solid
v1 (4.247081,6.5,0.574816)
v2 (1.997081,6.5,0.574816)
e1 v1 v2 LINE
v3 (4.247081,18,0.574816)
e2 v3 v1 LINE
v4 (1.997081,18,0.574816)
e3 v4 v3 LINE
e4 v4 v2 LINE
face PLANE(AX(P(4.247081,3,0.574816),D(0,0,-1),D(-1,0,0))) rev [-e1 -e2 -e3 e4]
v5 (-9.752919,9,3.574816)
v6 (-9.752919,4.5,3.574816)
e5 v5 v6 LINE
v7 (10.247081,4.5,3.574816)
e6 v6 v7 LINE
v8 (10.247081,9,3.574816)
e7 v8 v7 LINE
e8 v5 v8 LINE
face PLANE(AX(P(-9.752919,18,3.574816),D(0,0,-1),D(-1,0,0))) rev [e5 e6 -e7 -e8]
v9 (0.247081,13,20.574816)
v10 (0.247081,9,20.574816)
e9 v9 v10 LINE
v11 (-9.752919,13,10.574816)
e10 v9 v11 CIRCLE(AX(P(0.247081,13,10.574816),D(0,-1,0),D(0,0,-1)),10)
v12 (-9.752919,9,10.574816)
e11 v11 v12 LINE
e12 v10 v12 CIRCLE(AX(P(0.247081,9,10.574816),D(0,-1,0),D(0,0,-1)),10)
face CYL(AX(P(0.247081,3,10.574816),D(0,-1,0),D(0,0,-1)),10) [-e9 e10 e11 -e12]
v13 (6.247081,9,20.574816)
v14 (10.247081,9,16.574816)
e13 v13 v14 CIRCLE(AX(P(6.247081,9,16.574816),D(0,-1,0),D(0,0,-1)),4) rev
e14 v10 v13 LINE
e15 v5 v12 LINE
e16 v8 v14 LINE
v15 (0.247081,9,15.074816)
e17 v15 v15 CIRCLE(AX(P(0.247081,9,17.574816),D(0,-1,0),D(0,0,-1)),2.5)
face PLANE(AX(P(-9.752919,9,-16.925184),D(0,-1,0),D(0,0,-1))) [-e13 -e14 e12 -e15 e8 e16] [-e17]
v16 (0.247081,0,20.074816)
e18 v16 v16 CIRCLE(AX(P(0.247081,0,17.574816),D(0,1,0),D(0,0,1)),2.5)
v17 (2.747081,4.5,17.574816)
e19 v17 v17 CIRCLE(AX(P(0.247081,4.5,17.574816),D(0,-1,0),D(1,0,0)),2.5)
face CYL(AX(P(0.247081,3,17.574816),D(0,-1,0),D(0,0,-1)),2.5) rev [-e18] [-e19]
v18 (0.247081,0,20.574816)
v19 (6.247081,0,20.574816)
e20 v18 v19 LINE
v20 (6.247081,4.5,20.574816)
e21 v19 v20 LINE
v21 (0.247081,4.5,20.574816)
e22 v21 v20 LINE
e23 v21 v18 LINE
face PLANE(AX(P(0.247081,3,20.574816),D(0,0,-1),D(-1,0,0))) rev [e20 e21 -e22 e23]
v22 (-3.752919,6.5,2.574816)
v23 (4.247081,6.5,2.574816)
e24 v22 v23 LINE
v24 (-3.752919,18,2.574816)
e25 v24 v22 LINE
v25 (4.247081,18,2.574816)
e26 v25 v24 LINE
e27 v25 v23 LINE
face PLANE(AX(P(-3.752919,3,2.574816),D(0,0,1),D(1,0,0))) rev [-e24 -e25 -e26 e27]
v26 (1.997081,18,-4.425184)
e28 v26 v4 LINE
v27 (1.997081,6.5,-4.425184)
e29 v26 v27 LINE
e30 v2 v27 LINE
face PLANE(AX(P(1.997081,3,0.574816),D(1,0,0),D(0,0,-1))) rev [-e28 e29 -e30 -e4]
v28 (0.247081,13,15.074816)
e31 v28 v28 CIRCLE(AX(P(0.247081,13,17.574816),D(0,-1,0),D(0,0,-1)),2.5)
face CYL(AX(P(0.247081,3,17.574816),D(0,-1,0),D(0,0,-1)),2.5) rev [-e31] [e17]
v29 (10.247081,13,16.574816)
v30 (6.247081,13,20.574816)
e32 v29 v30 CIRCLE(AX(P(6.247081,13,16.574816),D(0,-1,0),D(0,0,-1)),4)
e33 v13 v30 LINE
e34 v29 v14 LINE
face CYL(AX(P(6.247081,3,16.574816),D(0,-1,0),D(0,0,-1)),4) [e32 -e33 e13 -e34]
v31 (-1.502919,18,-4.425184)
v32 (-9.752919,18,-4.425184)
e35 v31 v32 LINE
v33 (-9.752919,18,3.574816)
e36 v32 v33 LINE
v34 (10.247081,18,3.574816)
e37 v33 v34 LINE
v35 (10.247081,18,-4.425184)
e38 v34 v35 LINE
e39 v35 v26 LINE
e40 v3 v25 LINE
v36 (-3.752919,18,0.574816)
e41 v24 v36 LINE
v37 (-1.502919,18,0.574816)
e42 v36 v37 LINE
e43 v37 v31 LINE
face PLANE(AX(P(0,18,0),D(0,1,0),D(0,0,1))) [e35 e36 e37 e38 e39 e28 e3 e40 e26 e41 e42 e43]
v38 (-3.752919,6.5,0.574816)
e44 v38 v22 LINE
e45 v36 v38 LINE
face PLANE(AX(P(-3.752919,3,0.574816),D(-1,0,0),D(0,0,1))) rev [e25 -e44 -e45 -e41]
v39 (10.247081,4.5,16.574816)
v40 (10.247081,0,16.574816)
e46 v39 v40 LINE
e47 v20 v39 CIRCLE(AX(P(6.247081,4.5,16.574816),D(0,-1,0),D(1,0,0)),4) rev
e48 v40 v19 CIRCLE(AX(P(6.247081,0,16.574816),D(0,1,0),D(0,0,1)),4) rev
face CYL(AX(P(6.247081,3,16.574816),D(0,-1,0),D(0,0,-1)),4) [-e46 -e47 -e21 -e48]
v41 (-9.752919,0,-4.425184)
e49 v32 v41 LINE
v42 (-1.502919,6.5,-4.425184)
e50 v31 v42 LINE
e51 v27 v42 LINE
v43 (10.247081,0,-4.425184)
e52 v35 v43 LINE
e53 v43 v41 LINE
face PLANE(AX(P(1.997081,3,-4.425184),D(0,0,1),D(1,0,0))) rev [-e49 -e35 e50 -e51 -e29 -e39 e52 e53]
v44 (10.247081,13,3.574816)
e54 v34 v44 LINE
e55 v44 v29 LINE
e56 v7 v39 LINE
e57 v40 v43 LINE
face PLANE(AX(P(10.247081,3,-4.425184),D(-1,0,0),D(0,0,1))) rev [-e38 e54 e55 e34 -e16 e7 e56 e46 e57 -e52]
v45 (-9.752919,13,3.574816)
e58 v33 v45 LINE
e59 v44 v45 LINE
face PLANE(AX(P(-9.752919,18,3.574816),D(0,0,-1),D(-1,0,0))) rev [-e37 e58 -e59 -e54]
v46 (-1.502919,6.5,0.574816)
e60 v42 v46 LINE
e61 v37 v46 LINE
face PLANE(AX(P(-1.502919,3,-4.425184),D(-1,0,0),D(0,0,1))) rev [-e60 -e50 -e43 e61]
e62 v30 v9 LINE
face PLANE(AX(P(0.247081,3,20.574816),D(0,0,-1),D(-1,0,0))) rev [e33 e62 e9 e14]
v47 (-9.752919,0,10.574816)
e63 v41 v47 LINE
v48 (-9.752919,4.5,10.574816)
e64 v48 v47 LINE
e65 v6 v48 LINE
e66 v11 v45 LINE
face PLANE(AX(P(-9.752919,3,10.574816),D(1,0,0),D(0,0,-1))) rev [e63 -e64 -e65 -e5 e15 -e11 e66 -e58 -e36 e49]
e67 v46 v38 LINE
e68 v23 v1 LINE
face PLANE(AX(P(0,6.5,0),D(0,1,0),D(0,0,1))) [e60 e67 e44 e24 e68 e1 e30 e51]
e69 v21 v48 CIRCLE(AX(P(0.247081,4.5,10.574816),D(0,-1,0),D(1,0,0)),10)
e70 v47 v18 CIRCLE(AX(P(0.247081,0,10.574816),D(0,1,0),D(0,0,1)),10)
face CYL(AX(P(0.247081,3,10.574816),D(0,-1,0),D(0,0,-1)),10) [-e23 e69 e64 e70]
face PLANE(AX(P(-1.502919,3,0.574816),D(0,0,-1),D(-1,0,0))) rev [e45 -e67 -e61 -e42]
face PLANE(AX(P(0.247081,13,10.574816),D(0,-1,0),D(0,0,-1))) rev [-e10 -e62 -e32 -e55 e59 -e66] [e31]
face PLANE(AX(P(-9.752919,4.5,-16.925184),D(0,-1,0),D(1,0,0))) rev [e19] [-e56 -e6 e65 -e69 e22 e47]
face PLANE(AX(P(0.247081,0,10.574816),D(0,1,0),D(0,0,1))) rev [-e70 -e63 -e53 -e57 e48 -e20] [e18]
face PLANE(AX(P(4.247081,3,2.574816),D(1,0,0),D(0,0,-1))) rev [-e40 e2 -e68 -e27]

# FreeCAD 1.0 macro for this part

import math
import FreeCAD as App
import Part
import Sketcher
from FreeCAD import Vector
Q = App.Units.Quantity


def edges_at(feature, points):
    """Names of the edges that pass closest to the given points."""
    edges = feature.Shape.Edges
    near = lambda p: min(range(len(edges)), key=lambda i: edges[i].distToShape(Part.Vertex(*p))[0])
    return sorted({f"Edge{near(p) + 1}" for p in points})


def add_polygon(sketch, points):
    """Adds a closed chain of lines whose ends are joined by coincident constraints."""
    first, n = sketch.GeometryCount, len(points)
    for a, b in zip(points, points[1:] + points[:1]):
        sketch.addGeometry(Part.LineSegment(App.Vector(*a, 0), App.Vector(*b, 0)), False)
    for i in range(n):
        sketch.addConstraint(Sketcher.Constraint("Coincident", first + i, 2, first + (i + 1) % n, 1))

doc = App.newDocument("Part")
body = doc.addObject("PartDesign::Body", "Body")

# Sketch on XZ plane
sketch1 = body.newObject("Sketcher::SketchObject", "Sketch")
sketch1.AttachmentSupport = (doc.getObject("XZ_Plane"), [""])
sketch1.MapMode = "FlatFace"
sketch1.addGeometry([
    Part.LineSegment(Vector(-1.5, 0.6, 0), Vector(-1.5, -4.4, 0)),  # 0
    Part.LineSegment(Vector(-1.5, -4.4, 0), Vector(-9.8, -4.4, 0)),  # 1
    Part.LineSegment(Vector(-9.8, -4.4, 0), Vector(-9.8, 10.6, 0)),  # 2
    Part.ArcOfCircle(Part.Circle(Vector(0.2, 10.6, 0), Vector(0, 0, 1), 10), math.radians(90), math.radians(180)),  # 3
    Part.LineSegment(Vector(0.2, 20.6, 0), Vector(10.2, 20.6, 0)),  # 4
    Part.LineSegment(Vector(10.2, 20.6, 0), Vector(10.2, -4.4, 0)),  # 5
    Part.LineSegment(Vector(10.2, -4.4, 0), Vector(2, -4.4, 0)),  # 6
    Part.LineSegment(Vector(2, -4.4, 0), Vector(2, 0.6, 0)),  # 7
    Part.LineSegment(Vector(2, 0.6, 0), Vector(4.2, 0.6, 0)),  # 8
    Part.LineSegment(Vector(4.2, 0.6, 0), Vector(4.2, 2.6, 0)),  # 9
    Part.LineSegment(Vector(4.2, 2.6, 0), Vector(-3.8, 2.6, 0)),  # 10
    Part.LineSegment(Vector(-3.8, 2.6, 0), Vector(-3.8, 0.6, 0)),  # 11
    Part.LineSegment(Vector(-3.8, 0.6, 0), Vector(-1.5, 0.6, 0)),  # 12
    Part.Circle(Vector(0.2, 17.6, 0), Vector(0, 0, 1), 2.5),  # 13
], False)
sketch1.addConstraint([
    Sketcher.Constraint("Coincident", 0, 2, 1, 1),
    Sketcher.Constraint("Coincident", 1, 2, 2, 1),
    Sketcher.Constraint("Tangent", 2, 2, 3, 2),
    Sketcher.Constraint("Tangent", 3, 1, 4, 1),
    Sketcher.Constraint("Coincident", 4, 2, 5, 1),
    Sketcher.Constraint("Coincident", 5, 2, 6, 1),
    Sketcher.Constraint("Coincident", 6, 2, 7, 1),
    Sketcher.Constraint("Coincident", 7, 2, 8, 1),
    Sketcher.Constraint("Coincident", 8, 2, 9, 1),
    Sketcher.Constraint("Coincident", 9, 2, 10, 1),
    Sketcher.Constraint("Coincident", 10, 2, 11, 1),
    Sketcher.Constraint("Coincident", 11, 2, 12, 1),
    Sketcher.Constraint("Coincident", 12, 2, 0, 1),
    Sketcher.Constraint("Vertical", 0),
    Sketcher.Constraint("Horizontal", 1),
    Sketcher.Constraint("Vertical", 2),
    Sketcher.Constraint("Horizontal", 4),
    Sketcher.Constraint("Vertical", 5),
    Sketcher.Constraint("Horizontal", 6),
    Sketcher.Constraint("Vertical", 7),
    Sketcher.Constraint("Horizontal", 8),
    Sketcher.Constraint("Vertical", 9),
    Sketcher.Constraint("Horizontal", 10),
    Sketcher.Constraint("Vertical", 11),
    Sketcher.Constraint("Horizontal", 12),
    Sketcher.Constraint("Horizontal", 1, 2, 5, 2),
    Sketcher.Constraint("Horizontal", 8, 2, 11, 2),
    Sketcher.Constraint("Vertical", 3, 3, 13, 3),
    Sketcher.Constraint("Equal", 1, 6),
    Sketcher.Constraint("Equal", 8, 12),
    Sketcher.Constraint("Diameter", 13, Q("5 mm")),
    Sketcher.Constraint("Radius", 3, Q("10 mm")),
    Sketcher.Constraint("DistanceX", 4, 1, 4, 2, Q("10 mm")),
    Sketcher.Constraint("DistanceX", 10, 2, 10, 1, Q("8 mm")),
    Sketcher.Constraint("DistanceY", 0, 2, 0, 1, Q("5 mm")),
    Sketcher.Constraint("DistanceY", 2, 1, 2, 2, Q("15 mm")),
    Sketcher.Constraint("DistanceY", 9, 1, 9, 2, Q("2 mm")),
    Sketcher.Constraint("DistanceY", 3, 3, 13, 3, Q("7 mm")),
    Sketcher.Constraint("DistanceX", 1, 2, 1, 1, Q("8.25 mm")),
    Sketcher.Constraint("DistanceX", -1, 1, 3, 3, Q("0.247081 mm")),
    Sketcher.Constraint("DistanceY", -1, 1, 3, 3, Q("10.574816 mm")),
])
pad1 = body.newObject("PartDesign::Pad", "Pad")
pad1.Profile = sketch1
pad1.Length = 3
pad1.Reversed = True
doc.recompute()

fillet = body.newObject("PartDesign::Fillet", "Fillet")
fillet.Base = (pad1, edges_at(pad1, [(10.247, 1.5, 20.575)]))
fillet.Radius = 4

# Sketch on XZ plane
sketch2 = body.newObject("Sketcher::SketchObject", "Sketch001")
sketch2.AttachmentSupport = (doc.getObject("XZ_Plane"), [""])
sketch2.MapMode = "FlatFace"
sketch2.AttachmentOffset = App.Placement(Vector(0, 0, -3), App.Rotation())
add_polygon(sketch2, [(-9.8, 3.6), (10.2, 3.6), (10.2, -4.4), (2, -4.4), (2, 0.6), (4.2, 0.6), (4.2, 2.6), (-3.8, 2.6), (-3.8, 0.6), (-1.5, 0.6), (-1.5, -4.4), (-9.8, -4.4)])  # lines 0-11
sketch2.addConstraint([
    Sketcher.Constraint("Horizontal", 0),
    Sketcher.Constraint("Vertical", 1),
    Sketcher.Constraint("Horizontal", 2),
    Sketcher.Constraint("Vertical", 3),
    Sketcher.Constraint("Horizontal", 4),
    Sketcher.Constraint("Vertical", 5),
    Sketcher.Constraint("Horizontal", 6),
    Sketcher.Constraint("Vertical", 7),
    Sketcher.Constraint("Horizontal", 8),
    Sketcher.Constraint("Vertical", 9),
    Sketcher.Constraint("Horizontal", 10),
    Sketcher.Constraint("Vertical", 11),
    Sketcher.Constraint("Horizontal", 4, 2, 7, 2),
    Sketcher.Constraint("Horizontal", 2, 2, 9, 2),
    Sketcher.Constraint("Equal", 4, 8),
    Sketcher.Constraint("Equal", 2, 10),
    Sketcher.Constraint("Equal", 6, 1),
    Sketcher.Constraint("DistanceX", 0, 1, 0, 2, Q("20 mm")),
    Sketcher.Constraint("DistanceX", 6, 2, 6, 1, Q("8 mm")),
    Sketcher.Constraint("DistanceY", 3, 1, 3, 2, Q("5 mm")),
    Sketcher.Constraint("DistanceY", 5, 1, 5, 2, Q("2 mm")),
    Sketcher.Constraint("DistanceX", 2, 2, 2, 1, Q("8.25 mm")),
    Sketcher.Constraint("DistanceX", -1, 1, 0, 2, Q("10.247081 mm")),
    Sketcher.Constraint("DistanceY", -1, 1, 0, 2, Q("3.574816 mm")),
])
pad2 = body.newObject("PartDesign::Pad", "Pad001")
pad2.Profile = sketch2
pad2.Length = 15
pad2.Reversed = True

# Sketch on XZ plane
sketch3 = body.newObject("Sketcher::SketchObject", "Sketch002")
sketch3.AttachmentSupport = (doc.getObject("XZ_Plane"), [""])
sketch3.MapMode = "FlatFace"
add_polygon(sketch3, [(-4, 3), (-4, -4), (5, -4), (5, 3)])  # lines 0-3
sketch3.addConstraint([
    Sketcher.Constraint("Vertical", 0),
    Sketcher.Constraint("Horizontal", 1),
    Sketcher.Constraint("Vertical", 2),
    Sketcher.Constraint("Horizontal", 3),
    Sketcher.Constraint("DistanceX", 1, 1, 1, 2, Q("9.109731 mm")),
    Sketcher.Constraint("DistanceY", 0, 2, 0, 1, Q("7.453924 mm")),
    Sketcher.Constraint("DistanceX", 0, 2, -1, 1, Q("4.35244 mm")),
    Sketcher.Constraint("DistanceY", -1, 1, 2, 2, Q("3.02874 mm")),
])
pad3 = body.newObject("PartDesign::Pad", "Pad002")
pad3.Profile = sketch3
pad3.Length = 4
pad3.Reversed = True

# Sketch on XZ plane
sketch4 = body.newObject("Sketcher::SketchObject", "Sketch003")
sketch4.AttachmentSupport = (doc.getObject("XZ_Plane"), [""])
sketch4.MapMode = "FlatFace"
sketch4.addGeometry([
    Part.LineSegment(Vector(-9.8, -4.4, 0), Vector(10.2, -4.4, 0)),  # 0
    Part.LineSegment(Vector(10.2, -4.4, 0), Vector(10.2, 16.6, 0)),  # 1
    Part.ArcOfCircle(Part.Circle(Vector(6.2, 16.6, 0), Vector(0, 0, 1), 4), math.radians(0), math.radians(90)),  # 2
    Part.LineSegment(Vector(6.2, 20.6, 0), Vector(0.2, 20.6, 0)),  # 3
    Part.ArcOfCircle(Part.Circle(Vector(0.2, 10.6, 0), Vector(0, 0, 1), 10), math.radians(90), math.radians(180)),  # 4
    Part.LineSegment(Vector(-9.8, 10.6, 0), Vector(-9.8, -4.4, 0)),  # 5
    Part.Circle(Vector(0.2, 17.6, 0), Vector(0, 0, 1), 2.5),  # 6
], False)
sketch4.addConstraint([
    Sketcher.Constraint("Coincident", 0, 2, 1, 1),
    Sketcher.Constraint("Tangent", 1, 2, 2, 1),
    Sketcher.Constraint("Tangent", 2, 2, 3, 1),
    Sketcher.Constraint("Tangent", 3, 2, 4, 1),
    Sketcher.Constraint("Tangent", 4, 2, 5, 1),
    Sketcher.Constraint("Coincident", 5, 2, 0, 1),
    Sketcher.Constraint("Horizontal", 0),
    Sketcher.Constraint("Vertical", 1),
    Sketcher.Constraint("Horizontal", 3),
    Sketcher.Constraint("Vertical", 5),
    Sketcher.Constraint("Vertical", 4, 3, 6, 3),
    Sketcher.Constraint("Diameter", 6, Q("5 mm")),
    Sketcher.Constraint("Radius", 2, Q("4 mm")),
    Sketcher.Constraint("Radius", 4, Q("10 mm")),
    Sketcher.Constraint("DistanceX", 0, 1, 0, 2, Q("20 mm")),
    Sketcher.Constraint("DistanceY", 1, 1, 1, 2, Q("21 mm")),
    Sketcher.Constraint("DistanceY", 2, 3, 6, 3, Q("1 mm")),
    Sketcher.Constraint("DistanceX", -1, 1, 2, 3, Q("6.247081 mm")),
    Sketcher.Constraint("DistanceY", -1, 1, 2, 3, Q("16.574816 mm")),
])
pad4 = body.newObject("PartDesign::Pad", "Pad003")
pad4.Profile = sketch4
pad4.Length = 13
pad4.Reversed = True

# Sketch on XY plane
sketch5 = body.newObject("Sketcher::SketchObject", "Sketch004")
sketch5.AttachmentSupport = (doc.getObject("XY_Plane"), [""])
sketch5.MapMode = "FlatFace"
sketch5.AttachmentOffset = App.Placement(Vector(0, 0, 20.574816), App.Rotation())
add_polygon(sketch5, [(-9.8, 9), (-9.8, 4.5), (10.2, 4.5), (10.2, 9)])  # lines 0-3
sketch5.addConstraint([
    Sketcher.Constraint("Vertical", 0),
    Sketcher.Constraint("Horizontal", 1),
    Sketcher.Constraint("Vertical", 2),
    Sketcher.Constraint("Horizontal", 3),
    Sketcher.Constraint("DistanceX", 1, 1, 1, 2, Q("20 mm")),
    Sketcher.Constraint("DistanceY", 0, 2, 0, 1, Q("4.5 mm")),
    Sketcher.Constraint("DistanceY", -1, 1, 2, 2, Q("9 mm")),
    Sketcher.Constraint("DistanceX", 0, 2, -1, 1, Q("9.752919 mm")),
])
pocket1 = body.newObject("PartDesign::Pocket", "Pocket")
pocket1.Profile = sketch5
pocket1.Length = 17

# Sketch on XZ plane
sketch6 = body.newObject("Sketcher::SketchObject", "Sketch005")
sketch6.AttachmentSupport = (doc.getObject("XZ_Plane"), [""])
sketch6.MapMode = "FlatFace"
sketch6.AttachmentOffset = App.Placement(Vector(0, 0, -13), App.Rotation())
add_polygon(sketch6, [(-1.5, -4.4), (-1.5, 0.6), (-3.8, 0.6), (-3.8, 2.6), (4.2, 2.6), (4.2, 0.6), (2, 0.6), (2, -4.4)])  # lines 0-7
sketch6.addConstraint([
    Sketcher.Constraint("Vertical", 0),
    Sketcher.Constraint("Horizontal", 1),
    Sketcher.Constraint("Vertical", 2),
    Sketcher.Constraint("Horizontal", 3),
    Sketcher.Constraint("Vertical", 4),
    Sketcher.Constraint("Horizontal", 5),
    Sketcher.Constraint("Vertical", 6),
    Sketcher.Constraint("Horizontal", 7),
    Sketcher.Constraint("Horizontal", 1, 2, 4, 2),
    Sketcher.Constraint("Equal", 1, 5),
    Sketcher.Constraint("DistanceX", 3, 1, 3, 2, Q("8 mm")),
    Sketcher.Constraint("DistanceY", 0, 1, 0, 2, Q("5 mm")),
    Sketcher.Constraint("DistanceY", 2, 1, 2, 2, Q("2 mm")),
    Sketcher.Constraint("DistanceX", 7, 2, 7, 1, Q("3.5 mm")),
    Sketcher.Constraint("DistanceX", 0, 2, -1, 1, Q("1.502919 mm")),
    Sketcher.Constraint("DistanceY", -1, 1, 0, 2, Q("0.574816 mm")),
])
pocket2 = body.newObject("PartDesign::Pocket", "Pocket001")
pocket2.Profile = sketch6
pocket2.Length = 6.5
pocket2.Reversed = True

doc.recompute()
